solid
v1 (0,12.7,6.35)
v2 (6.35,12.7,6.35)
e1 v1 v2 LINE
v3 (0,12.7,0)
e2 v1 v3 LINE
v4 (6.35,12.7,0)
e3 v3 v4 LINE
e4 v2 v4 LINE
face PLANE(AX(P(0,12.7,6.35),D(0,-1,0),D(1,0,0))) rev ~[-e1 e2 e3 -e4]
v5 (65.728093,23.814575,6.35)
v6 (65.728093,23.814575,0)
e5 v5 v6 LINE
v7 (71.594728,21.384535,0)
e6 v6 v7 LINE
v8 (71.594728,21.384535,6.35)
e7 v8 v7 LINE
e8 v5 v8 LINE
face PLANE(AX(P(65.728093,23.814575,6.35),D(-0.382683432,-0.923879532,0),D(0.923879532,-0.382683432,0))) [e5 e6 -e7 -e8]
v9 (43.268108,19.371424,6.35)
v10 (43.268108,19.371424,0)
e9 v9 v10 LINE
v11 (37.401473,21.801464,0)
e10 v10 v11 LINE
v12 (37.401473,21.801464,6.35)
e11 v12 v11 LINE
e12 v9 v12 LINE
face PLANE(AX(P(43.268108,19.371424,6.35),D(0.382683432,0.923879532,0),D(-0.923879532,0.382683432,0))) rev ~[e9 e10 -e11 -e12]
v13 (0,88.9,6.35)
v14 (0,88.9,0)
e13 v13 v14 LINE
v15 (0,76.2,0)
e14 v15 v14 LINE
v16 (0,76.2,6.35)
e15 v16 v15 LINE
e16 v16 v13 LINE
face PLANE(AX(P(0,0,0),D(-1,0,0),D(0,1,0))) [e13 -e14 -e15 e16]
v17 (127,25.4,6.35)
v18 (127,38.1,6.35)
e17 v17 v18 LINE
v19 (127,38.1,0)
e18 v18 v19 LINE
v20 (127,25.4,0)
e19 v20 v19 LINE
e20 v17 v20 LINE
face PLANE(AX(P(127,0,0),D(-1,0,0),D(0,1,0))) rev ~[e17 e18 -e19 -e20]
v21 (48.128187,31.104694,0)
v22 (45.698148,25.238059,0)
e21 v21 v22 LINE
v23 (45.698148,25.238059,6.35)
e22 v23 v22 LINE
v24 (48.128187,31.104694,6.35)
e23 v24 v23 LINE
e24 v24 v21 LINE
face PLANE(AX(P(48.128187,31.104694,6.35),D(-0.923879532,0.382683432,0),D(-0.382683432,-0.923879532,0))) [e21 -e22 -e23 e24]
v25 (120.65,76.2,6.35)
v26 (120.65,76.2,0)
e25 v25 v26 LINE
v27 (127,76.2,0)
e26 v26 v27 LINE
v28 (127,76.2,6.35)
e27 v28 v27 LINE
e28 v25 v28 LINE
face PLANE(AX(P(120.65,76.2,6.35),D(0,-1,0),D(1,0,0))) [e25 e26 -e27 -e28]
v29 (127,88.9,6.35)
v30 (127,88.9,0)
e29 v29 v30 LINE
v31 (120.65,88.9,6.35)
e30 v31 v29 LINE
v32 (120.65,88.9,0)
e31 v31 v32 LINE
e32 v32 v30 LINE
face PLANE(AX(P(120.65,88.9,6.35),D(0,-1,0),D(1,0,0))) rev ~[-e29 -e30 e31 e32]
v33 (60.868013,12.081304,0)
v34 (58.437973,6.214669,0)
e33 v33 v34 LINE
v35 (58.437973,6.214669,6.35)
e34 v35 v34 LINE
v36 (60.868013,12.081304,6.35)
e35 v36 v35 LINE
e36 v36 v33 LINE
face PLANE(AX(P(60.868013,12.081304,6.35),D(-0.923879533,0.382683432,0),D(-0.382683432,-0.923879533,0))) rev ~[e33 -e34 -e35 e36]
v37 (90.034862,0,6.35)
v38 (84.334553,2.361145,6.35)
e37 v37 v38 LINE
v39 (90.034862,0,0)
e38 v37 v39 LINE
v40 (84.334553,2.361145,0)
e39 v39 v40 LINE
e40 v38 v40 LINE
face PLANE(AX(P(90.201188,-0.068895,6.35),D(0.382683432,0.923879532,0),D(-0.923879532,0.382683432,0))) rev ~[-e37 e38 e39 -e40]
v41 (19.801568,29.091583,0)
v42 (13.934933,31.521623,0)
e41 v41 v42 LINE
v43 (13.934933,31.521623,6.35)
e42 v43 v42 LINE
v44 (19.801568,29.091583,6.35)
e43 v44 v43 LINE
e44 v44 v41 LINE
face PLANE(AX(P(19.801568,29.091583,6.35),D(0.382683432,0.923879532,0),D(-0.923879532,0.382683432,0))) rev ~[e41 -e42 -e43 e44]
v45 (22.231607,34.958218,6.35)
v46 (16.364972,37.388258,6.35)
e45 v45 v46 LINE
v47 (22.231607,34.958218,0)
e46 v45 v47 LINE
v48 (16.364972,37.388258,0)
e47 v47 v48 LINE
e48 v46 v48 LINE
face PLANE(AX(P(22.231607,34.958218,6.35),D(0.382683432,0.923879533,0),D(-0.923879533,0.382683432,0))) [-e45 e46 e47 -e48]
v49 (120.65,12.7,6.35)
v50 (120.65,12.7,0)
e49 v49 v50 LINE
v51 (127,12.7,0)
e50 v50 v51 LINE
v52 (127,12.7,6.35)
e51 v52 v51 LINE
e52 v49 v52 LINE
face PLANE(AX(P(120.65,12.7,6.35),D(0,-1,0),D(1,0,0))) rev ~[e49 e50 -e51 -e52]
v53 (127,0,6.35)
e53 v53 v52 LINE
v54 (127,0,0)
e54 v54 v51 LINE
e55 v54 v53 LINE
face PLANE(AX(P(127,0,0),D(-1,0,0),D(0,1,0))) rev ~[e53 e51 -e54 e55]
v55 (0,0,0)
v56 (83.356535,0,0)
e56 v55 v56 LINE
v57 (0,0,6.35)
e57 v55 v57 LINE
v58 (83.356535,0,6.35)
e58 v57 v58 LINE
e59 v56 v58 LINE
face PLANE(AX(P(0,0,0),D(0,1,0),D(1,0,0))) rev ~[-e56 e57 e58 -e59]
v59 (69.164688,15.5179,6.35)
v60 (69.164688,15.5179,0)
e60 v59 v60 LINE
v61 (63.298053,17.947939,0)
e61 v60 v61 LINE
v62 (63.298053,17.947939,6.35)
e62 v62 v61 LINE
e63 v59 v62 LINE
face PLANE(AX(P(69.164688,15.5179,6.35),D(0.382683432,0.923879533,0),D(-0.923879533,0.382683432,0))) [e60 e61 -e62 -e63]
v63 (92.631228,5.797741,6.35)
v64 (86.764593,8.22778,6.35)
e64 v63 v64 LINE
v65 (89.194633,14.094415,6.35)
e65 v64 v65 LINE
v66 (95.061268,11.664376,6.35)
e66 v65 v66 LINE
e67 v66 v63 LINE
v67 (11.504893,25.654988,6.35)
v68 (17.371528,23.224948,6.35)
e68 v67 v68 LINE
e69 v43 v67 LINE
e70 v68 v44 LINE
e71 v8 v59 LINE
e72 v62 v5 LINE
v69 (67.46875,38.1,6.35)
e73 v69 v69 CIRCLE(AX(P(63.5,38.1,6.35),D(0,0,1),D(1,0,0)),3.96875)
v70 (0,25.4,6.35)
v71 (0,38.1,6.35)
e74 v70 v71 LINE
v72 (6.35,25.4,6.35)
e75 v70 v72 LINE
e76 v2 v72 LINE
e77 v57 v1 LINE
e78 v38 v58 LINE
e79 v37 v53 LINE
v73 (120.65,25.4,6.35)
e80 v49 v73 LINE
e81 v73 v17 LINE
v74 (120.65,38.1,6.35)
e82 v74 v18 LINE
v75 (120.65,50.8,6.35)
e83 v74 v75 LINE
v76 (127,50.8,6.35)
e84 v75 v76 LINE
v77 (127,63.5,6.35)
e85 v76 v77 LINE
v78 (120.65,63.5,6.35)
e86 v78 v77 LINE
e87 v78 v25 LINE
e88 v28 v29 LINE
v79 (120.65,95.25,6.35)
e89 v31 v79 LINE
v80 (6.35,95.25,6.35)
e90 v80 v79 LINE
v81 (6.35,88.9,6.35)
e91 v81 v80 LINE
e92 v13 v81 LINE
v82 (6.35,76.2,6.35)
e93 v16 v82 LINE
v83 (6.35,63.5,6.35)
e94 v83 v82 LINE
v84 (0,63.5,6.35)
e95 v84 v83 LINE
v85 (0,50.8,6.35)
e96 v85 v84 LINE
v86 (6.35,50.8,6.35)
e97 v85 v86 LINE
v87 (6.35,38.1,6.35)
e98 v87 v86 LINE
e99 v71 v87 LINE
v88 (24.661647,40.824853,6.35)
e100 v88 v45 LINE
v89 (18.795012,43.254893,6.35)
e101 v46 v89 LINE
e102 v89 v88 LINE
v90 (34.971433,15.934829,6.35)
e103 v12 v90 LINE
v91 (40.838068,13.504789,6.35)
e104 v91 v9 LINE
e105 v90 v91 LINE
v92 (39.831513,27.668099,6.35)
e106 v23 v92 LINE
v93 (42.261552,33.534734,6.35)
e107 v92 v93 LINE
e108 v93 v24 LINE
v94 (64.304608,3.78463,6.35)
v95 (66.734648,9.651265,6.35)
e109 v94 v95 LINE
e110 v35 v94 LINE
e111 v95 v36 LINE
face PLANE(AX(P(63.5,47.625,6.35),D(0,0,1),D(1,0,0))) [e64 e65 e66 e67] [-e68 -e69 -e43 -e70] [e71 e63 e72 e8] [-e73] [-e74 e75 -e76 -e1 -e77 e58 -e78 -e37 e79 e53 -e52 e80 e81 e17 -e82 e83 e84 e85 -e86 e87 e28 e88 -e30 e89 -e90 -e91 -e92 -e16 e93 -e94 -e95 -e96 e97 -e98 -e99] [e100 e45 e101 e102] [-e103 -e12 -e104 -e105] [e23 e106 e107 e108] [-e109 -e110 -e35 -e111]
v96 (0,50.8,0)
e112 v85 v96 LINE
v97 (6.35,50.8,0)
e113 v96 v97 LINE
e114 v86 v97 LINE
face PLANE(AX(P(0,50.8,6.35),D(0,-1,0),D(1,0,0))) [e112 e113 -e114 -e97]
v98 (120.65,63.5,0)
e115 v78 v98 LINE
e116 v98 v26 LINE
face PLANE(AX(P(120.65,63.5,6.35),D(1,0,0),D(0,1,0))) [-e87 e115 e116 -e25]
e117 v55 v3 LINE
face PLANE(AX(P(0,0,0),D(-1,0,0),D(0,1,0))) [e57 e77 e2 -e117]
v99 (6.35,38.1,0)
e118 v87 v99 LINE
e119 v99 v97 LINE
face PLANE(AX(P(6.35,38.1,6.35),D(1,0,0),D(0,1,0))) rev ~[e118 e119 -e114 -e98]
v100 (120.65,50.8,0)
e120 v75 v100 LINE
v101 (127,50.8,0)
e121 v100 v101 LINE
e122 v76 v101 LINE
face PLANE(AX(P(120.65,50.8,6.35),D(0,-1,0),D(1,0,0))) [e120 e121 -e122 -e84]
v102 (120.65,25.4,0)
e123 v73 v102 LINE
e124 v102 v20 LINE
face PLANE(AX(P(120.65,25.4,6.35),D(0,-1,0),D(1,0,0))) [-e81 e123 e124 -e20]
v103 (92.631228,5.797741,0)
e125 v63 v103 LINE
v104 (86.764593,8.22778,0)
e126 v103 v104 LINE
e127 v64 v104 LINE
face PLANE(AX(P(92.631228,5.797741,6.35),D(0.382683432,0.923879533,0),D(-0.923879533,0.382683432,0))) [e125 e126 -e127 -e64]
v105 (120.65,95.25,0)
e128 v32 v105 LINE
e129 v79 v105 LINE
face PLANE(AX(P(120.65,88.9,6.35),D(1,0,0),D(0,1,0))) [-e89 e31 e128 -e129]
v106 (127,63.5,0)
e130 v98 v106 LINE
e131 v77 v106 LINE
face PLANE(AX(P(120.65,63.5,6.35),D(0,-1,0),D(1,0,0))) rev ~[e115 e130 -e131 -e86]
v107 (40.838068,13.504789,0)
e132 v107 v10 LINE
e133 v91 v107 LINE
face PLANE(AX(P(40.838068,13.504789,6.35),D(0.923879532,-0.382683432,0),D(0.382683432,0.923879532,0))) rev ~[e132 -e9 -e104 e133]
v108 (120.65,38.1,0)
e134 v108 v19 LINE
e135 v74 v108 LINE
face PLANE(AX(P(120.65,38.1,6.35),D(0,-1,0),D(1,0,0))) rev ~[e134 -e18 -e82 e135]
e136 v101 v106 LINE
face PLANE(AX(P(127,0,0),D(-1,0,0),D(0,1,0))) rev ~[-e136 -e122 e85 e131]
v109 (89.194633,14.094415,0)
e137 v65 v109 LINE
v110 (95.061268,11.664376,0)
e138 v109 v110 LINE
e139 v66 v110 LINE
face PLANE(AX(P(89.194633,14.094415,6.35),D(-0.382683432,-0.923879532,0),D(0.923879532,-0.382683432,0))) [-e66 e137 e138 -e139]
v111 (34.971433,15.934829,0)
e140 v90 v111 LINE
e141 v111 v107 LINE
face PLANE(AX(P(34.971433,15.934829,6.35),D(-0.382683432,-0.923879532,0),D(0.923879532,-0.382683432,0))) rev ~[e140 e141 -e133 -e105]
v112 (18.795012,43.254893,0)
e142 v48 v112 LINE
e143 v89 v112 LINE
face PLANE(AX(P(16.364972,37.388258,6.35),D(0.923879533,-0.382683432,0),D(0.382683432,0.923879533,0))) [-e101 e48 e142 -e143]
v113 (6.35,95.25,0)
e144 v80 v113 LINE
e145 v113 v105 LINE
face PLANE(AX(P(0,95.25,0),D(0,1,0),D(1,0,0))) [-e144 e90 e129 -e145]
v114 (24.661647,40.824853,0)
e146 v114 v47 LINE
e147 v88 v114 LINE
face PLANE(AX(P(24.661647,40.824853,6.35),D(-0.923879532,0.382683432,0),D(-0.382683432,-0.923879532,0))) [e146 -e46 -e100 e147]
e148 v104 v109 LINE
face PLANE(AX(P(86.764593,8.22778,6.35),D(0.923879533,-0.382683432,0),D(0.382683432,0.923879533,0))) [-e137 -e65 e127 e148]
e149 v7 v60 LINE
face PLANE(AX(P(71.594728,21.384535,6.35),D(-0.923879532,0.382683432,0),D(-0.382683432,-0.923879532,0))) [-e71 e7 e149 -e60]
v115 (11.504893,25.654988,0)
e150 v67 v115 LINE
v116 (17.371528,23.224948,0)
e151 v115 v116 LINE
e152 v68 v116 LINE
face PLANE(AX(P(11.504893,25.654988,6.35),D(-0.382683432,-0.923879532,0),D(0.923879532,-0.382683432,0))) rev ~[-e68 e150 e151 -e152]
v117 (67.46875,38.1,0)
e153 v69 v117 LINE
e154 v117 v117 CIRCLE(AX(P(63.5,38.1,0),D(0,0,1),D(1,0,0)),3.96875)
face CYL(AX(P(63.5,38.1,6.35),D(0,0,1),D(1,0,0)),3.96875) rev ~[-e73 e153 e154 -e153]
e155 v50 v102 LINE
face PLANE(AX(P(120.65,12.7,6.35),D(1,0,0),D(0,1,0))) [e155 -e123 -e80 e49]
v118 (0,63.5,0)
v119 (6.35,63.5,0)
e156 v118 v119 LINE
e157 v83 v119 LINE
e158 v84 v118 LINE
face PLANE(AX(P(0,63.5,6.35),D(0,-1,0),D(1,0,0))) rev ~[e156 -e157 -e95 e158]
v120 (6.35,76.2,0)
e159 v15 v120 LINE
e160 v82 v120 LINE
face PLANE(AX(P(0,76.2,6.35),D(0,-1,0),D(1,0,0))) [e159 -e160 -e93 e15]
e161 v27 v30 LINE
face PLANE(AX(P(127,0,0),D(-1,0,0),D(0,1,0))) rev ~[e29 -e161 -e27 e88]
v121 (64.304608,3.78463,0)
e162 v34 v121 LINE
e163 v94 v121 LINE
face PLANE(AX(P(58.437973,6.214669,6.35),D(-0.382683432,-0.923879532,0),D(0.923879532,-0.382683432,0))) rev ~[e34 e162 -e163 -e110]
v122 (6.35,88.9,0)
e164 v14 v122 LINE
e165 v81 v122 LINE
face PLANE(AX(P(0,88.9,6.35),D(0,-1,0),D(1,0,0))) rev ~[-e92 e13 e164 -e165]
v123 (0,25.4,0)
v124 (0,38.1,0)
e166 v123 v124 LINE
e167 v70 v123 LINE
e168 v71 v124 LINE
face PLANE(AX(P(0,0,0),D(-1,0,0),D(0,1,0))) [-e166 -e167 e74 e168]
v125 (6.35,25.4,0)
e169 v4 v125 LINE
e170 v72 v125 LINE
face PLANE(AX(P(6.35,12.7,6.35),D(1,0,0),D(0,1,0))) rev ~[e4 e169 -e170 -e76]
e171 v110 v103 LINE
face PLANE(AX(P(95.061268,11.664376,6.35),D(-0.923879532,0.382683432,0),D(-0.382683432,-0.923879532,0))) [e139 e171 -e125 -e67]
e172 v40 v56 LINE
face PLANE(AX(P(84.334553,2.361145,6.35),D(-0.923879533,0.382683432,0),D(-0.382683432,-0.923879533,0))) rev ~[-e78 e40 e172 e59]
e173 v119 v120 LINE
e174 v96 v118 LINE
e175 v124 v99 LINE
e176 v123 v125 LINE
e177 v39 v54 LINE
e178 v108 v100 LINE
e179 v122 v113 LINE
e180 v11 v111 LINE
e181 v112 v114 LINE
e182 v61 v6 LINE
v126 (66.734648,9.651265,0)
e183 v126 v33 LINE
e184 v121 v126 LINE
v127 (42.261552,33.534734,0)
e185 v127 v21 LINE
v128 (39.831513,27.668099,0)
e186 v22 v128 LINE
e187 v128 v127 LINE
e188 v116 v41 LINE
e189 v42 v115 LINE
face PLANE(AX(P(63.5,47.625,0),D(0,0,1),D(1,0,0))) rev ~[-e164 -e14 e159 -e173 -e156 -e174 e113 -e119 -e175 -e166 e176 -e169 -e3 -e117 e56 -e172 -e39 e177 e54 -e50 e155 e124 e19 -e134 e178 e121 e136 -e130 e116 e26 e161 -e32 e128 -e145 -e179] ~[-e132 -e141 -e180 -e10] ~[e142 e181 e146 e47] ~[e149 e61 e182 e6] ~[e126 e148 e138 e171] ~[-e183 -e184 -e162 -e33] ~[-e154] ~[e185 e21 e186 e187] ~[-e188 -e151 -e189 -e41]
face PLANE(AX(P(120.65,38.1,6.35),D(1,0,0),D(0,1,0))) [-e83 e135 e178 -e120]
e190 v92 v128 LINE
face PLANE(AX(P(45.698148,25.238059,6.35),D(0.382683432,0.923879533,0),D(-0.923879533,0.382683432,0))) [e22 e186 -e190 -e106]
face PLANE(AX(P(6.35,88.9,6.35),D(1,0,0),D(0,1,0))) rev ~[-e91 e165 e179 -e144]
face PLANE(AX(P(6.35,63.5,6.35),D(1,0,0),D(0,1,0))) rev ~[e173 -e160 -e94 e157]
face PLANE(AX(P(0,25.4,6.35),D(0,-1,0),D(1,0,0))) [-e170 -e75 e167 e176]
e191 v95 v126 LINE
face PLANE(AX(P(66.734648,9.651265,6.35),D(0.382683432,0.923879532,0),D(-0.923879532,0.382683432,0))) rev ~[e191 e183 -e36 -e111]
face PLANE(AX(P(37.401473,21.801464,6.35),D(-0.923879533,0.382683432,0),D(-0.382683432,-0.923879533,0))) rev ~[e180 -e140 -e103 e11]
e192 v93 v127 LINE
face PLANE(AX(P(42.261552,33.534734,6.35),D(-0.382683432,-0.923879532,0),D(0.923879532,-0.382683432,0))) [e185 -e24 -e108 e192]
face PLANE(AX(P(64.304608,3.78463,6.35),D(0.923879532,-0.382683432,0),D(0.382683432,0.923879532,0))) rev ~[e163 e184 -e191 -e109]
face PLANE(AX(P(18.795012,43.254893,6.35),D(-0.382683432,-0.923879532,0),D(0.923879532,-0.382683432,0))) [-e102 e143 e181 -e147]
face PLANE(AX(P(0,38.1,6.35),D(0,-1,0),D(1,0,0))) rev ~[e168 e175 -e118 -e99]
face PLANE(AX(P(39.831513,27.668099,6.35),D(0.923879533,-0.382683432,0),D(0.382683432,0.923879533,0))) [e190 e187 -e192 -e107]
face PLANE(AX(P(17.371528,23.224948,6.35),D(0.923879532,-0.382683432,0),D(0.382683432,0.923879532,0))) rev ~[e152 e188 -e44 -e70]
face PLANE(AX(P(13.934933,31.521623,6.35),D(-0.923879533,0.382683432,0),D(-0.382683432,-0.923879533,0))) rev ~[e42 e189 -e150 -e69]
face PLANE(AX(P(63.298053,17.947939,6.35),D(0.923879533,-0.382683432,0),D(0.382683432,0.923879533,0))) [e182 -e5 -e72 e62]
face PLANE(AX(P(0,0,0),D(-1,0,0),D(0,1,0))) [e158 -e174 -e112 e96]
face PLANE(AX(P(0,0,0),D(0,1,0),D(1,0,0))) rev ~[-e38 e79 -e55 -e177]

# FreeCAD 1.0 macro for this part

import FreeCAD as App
import Part
import Sketcher

V = App.Vector
Q = App.Units.Quantity

doc = App.newDocument("Part")
params = doc.addObject("Spreadsheet::Sheet", "Params")
for row, (alias, value) in enumerate([
    ("sketch1_width", "5 in"),
    ("sketch1_height", "3.75 in"),
    ("pad1_length", "0.25 in"),
    ("sketch2_diameter", "0.3125 in"),
    ("sketch3_height", "0.5 in"),
    ("sketch3_width", "0.25 in"),
    ("sketch4_height", "0.5 in"),
    ("sketch4_width", "0.25 in"),
    ("linearpattern_pitch", "1 in"),
    ("sketch5_length", "0.25 in"),
    ("linearpattern2_pitch", "1 in"),
], start=1):
    params.set(f"A{row}", alias)
    params.set(f"B{row}", "=" + value)
    params.setAlias(f"B{row}", alias)

body = doc.addObject("PartDesign::Body", "Body")

sketch1 = body.newObject("Sketcher::SketchObject", "Sketch")
sketch1.AttachmentSupport = (doc.getObject("XY_Plane"), [""])
sketch1.MapMode = "FlatFace"
sketch1.addGeometry([
    Part.LineSegment(V(0, 95, 0), V(0, 0, 0)),
    Part.LineSegment(V(0, 0, 0), V(127, 0, 0)),
    Part.LineSegment(V(127, 0, 0), V(127, 95, 0)),
    Part.LineSegment(V(127, 95, 0), V(0, 95, 0)),
], False)
sketch1.addConstraint([
    Sketcher.Constraint("Coincident", 0, 2, 1, 1),
    Sketcher.Constraint("Coincident", 1, 2, 2, 1),
    Sketcher.Constraint("Coincident", 2, 2, 3, 1),
    Sketcher.Constraint("Coincident", 3, 2, 0, 1),
    Sketcher.Constraint("Vertical", 0),
    Sketcher.Constraint("Horizontal", 1),
    Sketcher.Constraint("Vertical", 2),
    Sketcher.Constraint("Horizontal", 3),
    Sketcher.Constraint("Coincident", 0, 2, -1, 1),
    Sketcher.Constraint("DistanceX", 1, 1, 1, 2, Q("5 in")),
    Sketcher.Constraint("DistanceY", 0, 2, 0, 1, Q("3.75 in")),
])
sketch1.setExpression("Constraints[9]", "Params.sketch1_width")
sketch1.setExpression("Constraints[10]", "Params.sketch1_height")
pad1 = body.newObject("PartDesign::Pad", "Pad")
pad1.Profile = sketch1
pad1.setExpression("Length", "Params.pad1_length")

sketch2 = body.newObject("Sketcher::SketchObject", "Sketch001")
sketch2.AttachmentSupport = (doc.getObject("XY_Plane"), [""])
sketch2.MapMode = "FlatFace"
sketch2.AttachmentOffset = App.Placement(V(0, 0, 0.25 * 25.4), App.Rotation())
sketch2.addGeometry(Part.Circle(V(63.5, 38.1, 0), V(0, 0, 1), 4), False)
sketch2.addConstraint([
    Sketcher.Constraint("Diameter", 0, Q("0.3125 in")),
    Sketcher.Constraint("DistanceX", -1, 1, 0, 3, Q("2.5 in")),
    Sketcher.Constraint("DistanceY", -1, 1, 0, 3, Q("1.5 in")),
])
sketch2.setExpression("Constraints[0]", "Params.sketch2_diameter")
pocket1 = body.newObject("PartDesign::Pocket", "Pocket")
pocket1.Profile = sketch2
pocket1.Type = "ThroughAll"

sketch3 = body.newObject("Sketcher::SketchObject", "Sketch002")
sketch3.AttachmentSupport = (doc.getObject("XY_Plane"), [""])
sketch3.MapMode = "FlatFace"
sketch3.AttachmentOffset = App.Placement(V(0, 0, 0.25 * 25.4), App.Rotation())
sketch3.addGeometry([
    Part.LineSegment(V(0, 25, 0), V(0, 13, 0)),
    Part.LineSegment(V(0, 13, 0), V(6, 13, 0)),
    Part.LineSegment(V(6, 13, 0), V(6, 25, 0)),
    Part.LineSegment(V(6, 25, 0), V(0, 25, 0)),
], False)
sketch3.addConstraint([
    Sketcher.Constraint("Coincident", 0, 2, 1, 1),
    Sketcher.Constraint("Coincident", 1, 2, 2, 1),
    Sketcher.Constraint("Coincident", 2, 2, 3, 1),
    Sketcher.Constraint("Coincident", 3, 2, 0, 1),
    Sketcher.Constraint("Vertical", 0),
    Sketcher.Constraint("Horizontal", 1),
    Sketcher.Constraint("Vertical", 2),
    Sketcher.Constraint("Horizontal", 3),
    Sketcher.Constraint("PointOnObject", 0, 2, -2),
    Sketcher.Constraint("DistanceY", 0, 2, 0, 1, Q("0.5 in")),
    Sketcher.Constraint("DistanceY", -1, 1, 2, 2, Q("1 in")),
    Sketcher.Constraint("DistanceX", 1, 1, 1, 2, Q("0.25 in")),
])
sketch3.setExpression("Constraints[9]", "Params.sketch3_height")
sketch3.setExpression("Constraints[11]", "Params.sketch3_width")
pocket2 = body.newObject("PartDesign::Pocket", "Pocket001")
pocket2.Profile = sketch3
pocket2.Type = "ThroughAll"

sketch4 = body.newObject("Sketcher::SketchObject", "Sketch003")
sketch4.AttachmentSupport = (doc.getObject("XY_Plane"), [""])
sketch4.MapMode = "FlatFace"
sketch4.AttachmentOffset = App.Placement(V(0, 0, 0.25 * 25.4), App.Rotation())
sketch4.addGeometry([
    Part.LineSegment(V(121, 25, 0), V(121, 13, 0)),
    Part.LineSegment(V(121, 13, 0), V(127, 13, 0)),
    Part.LineSegment(V(127, 13, 0), V(127, 25, 0)),
    Part.LineSegment(V(127, 25, 0), V(121, 25, 0)),
], False)
sketch4.addConstraint([
    Sketcher.Constraint("Coincident", 0, 2, 1, 1),
    Sketcher.Constraint("Coincident", 1, 2, 2, 1),
    Sketcher.Constraint("Coincident", 2, 2, 3, 1),
    Sketcher.Constraint("Coincident", 3, 2, 0, 1),
    Sketcher.Constraint("Vertical", 0),
    Sketcher.Constraint("Horizontal", 1),
    Sketcher.Constraint("Vertical", 2),
    Sketcher.Constraint("Horizontal", 3),
    Sketcher.Constraint("DistanceY", 0, 2, 0, 1, Q("0.5 in")),
    Sketcher.Constraint("DistanceX", -1, 1, 1, 2, Q("5 in")),
    Sketcher.Constraint("DistanceY", -1, 1, 2, 2, Q("1 in")),
    Sketcher.Constraint("DistanceX", 1, 1, 1, 2, Q("0.25 in")),
])
sketch4.setExpression("Constraints[8]", "Params.sketch4_height")
sketch4.setExpression("Constraints[11]", "Params.sketch4_width")
pocket3 = body.newObject("PartDesign::Pocket", "Pocket002")
pocket3.Profile = sketch4
pocket3.Type = "ThroughAll"
doc.recompute()

linearpattern = body.newObject("PartDesign::LinearPattern", "LinearPattern")
linearpattern.Originals = [pocket2, pocket3]
linearpattern.Direction = (doc.getObject("Y_Axis"), [""])
linearpattern.Mode = "offset"
linearpattern.setExpression("Offset", "Params.linearpattern_pitch")
linearpattern.Occurrences = 4
body.Tip = linearpattern

sketch5 = body.newObject("Sketcher::SketchObject", "Sketch004")
sketch5.AttachmentSupport = (doc.getObject("XY_Plane"), [""])
sketch5.MapMode = "FlatFace"
sketch5.AttachmentOffset = App.Placement(V(0, 0, 0.25 * 25.4), App.Rotation())
sketch5.addGeometry([
    Part.LineSegment(V(22, 35, 0), V(25, 41, 0)),
    Part.LineSegment(V(25, 41, 0), V(19, 43, 0)),
    Part.LineSegment(V(19, 43, 0), V(16, 37, 0)),
    Part.LineSegment(V(16, 37, 0), V(22, 35, 0)),
    Part.LineSegment(V(17, 23, 0), V(20, 29, 0)),
    Part.LineSegment(V(20, 29, 0), V(14, 32, 0)),
    Part.LineSegment(V(14, 32, 0), V(12, 26, 0)),
    Part.LineSegment(V(12, 26, 0), V(17, 23, 0)),
], False)
sketch5.addConstraint([
    Sketcher.Constraint("Coincident", 0, 2, 1, 1),
    Sketcher.Constraint("Coincident", 1, 2, 2, 1),
    Sketcher.Constraint("Coincident", 2, 2, 3, 1),
    Sketcher.Constraint("Coincident", 3, 2, 0, 1),
    Sketcher.Constraint("Coincident", 4, 2, 5, 1),
    Sketcher.Constraint("Coincident", 5, 2, 6, 1),
    Sketcher.Constraint("Coincident", 6, 2, 7, 1),
    Sketcher.Constraint("Coincident", 7, 2, 4, 1),
    Sketcher.Constraint("Perpendicular", 0, 1),
    Sketcher.Constraint("Perpendicular", 1, 2),
    Sketcher.Constraint("Perpendicular", 2, 3),
    Sketcher.Constraint("Perpendicular", 3, 4),
    Sketcher.Constraint("Perpendicular", 4, 5),
    Sketcher.Constraint("Perpendicular", 5, 6),
    Sketcher.Constraint("Perpendicular", 6, 7),
    Sketcher.Constraint("Equal", 0, 1),
    Sketcher.Constraint("Equal", 3, 4),
    Sketcher.Constraint("Equal", 4, 5),
    Sketcher.Constraint("Angle", 0, Q("67.5 deg")),
    Sketcher.Constraint("Distance", 0, Q("0.25 in")),
    Sketcher.Constraint("DistanceY", -1, 1, 3, 2, 34.958218),
    Sketcher.Constraint("DistanceX", 4, 2, 3, 2, 2.43004),
    Sketcher.Constraint("DistanceY", 4, 2, 0, 2, 11.73327),
    Sketcher.Constraint("DistanceX", -1, 1, 0, 2, 24.661647),
])
sketch5.setExpression("Constraints[19]", "Params.sketch5_length")
pocket4 = body.newObject("PartDesign::Pocket", "Pocket003")
pocket4.Profile = sketch5
pocket4.Type = "ThroughAll"
doc.recompute()

datumline = body.newObject("PartDesign::Line", "DatumLine")
datumline.Placement = App.Placement(V(0, 0, 0), App.Rotation(V(0, 0, 1), V(0.923879533, -0.382683432, 0)))
linearpattern2 = body.newObject("PartDesign::LinearPattern", "LinearPattern001")
linearpattern2.Originals = [pocket4]
linearpattern2.Direction = (datumline, [""])
linearpattern2.Mode = "offset"
linearpattern2.setExpression("Offset", "Params.linearpattern2_pitch")
linearpattern2.Occurrences = 4
body.Tip = linearpattern2

doc.recompute()
